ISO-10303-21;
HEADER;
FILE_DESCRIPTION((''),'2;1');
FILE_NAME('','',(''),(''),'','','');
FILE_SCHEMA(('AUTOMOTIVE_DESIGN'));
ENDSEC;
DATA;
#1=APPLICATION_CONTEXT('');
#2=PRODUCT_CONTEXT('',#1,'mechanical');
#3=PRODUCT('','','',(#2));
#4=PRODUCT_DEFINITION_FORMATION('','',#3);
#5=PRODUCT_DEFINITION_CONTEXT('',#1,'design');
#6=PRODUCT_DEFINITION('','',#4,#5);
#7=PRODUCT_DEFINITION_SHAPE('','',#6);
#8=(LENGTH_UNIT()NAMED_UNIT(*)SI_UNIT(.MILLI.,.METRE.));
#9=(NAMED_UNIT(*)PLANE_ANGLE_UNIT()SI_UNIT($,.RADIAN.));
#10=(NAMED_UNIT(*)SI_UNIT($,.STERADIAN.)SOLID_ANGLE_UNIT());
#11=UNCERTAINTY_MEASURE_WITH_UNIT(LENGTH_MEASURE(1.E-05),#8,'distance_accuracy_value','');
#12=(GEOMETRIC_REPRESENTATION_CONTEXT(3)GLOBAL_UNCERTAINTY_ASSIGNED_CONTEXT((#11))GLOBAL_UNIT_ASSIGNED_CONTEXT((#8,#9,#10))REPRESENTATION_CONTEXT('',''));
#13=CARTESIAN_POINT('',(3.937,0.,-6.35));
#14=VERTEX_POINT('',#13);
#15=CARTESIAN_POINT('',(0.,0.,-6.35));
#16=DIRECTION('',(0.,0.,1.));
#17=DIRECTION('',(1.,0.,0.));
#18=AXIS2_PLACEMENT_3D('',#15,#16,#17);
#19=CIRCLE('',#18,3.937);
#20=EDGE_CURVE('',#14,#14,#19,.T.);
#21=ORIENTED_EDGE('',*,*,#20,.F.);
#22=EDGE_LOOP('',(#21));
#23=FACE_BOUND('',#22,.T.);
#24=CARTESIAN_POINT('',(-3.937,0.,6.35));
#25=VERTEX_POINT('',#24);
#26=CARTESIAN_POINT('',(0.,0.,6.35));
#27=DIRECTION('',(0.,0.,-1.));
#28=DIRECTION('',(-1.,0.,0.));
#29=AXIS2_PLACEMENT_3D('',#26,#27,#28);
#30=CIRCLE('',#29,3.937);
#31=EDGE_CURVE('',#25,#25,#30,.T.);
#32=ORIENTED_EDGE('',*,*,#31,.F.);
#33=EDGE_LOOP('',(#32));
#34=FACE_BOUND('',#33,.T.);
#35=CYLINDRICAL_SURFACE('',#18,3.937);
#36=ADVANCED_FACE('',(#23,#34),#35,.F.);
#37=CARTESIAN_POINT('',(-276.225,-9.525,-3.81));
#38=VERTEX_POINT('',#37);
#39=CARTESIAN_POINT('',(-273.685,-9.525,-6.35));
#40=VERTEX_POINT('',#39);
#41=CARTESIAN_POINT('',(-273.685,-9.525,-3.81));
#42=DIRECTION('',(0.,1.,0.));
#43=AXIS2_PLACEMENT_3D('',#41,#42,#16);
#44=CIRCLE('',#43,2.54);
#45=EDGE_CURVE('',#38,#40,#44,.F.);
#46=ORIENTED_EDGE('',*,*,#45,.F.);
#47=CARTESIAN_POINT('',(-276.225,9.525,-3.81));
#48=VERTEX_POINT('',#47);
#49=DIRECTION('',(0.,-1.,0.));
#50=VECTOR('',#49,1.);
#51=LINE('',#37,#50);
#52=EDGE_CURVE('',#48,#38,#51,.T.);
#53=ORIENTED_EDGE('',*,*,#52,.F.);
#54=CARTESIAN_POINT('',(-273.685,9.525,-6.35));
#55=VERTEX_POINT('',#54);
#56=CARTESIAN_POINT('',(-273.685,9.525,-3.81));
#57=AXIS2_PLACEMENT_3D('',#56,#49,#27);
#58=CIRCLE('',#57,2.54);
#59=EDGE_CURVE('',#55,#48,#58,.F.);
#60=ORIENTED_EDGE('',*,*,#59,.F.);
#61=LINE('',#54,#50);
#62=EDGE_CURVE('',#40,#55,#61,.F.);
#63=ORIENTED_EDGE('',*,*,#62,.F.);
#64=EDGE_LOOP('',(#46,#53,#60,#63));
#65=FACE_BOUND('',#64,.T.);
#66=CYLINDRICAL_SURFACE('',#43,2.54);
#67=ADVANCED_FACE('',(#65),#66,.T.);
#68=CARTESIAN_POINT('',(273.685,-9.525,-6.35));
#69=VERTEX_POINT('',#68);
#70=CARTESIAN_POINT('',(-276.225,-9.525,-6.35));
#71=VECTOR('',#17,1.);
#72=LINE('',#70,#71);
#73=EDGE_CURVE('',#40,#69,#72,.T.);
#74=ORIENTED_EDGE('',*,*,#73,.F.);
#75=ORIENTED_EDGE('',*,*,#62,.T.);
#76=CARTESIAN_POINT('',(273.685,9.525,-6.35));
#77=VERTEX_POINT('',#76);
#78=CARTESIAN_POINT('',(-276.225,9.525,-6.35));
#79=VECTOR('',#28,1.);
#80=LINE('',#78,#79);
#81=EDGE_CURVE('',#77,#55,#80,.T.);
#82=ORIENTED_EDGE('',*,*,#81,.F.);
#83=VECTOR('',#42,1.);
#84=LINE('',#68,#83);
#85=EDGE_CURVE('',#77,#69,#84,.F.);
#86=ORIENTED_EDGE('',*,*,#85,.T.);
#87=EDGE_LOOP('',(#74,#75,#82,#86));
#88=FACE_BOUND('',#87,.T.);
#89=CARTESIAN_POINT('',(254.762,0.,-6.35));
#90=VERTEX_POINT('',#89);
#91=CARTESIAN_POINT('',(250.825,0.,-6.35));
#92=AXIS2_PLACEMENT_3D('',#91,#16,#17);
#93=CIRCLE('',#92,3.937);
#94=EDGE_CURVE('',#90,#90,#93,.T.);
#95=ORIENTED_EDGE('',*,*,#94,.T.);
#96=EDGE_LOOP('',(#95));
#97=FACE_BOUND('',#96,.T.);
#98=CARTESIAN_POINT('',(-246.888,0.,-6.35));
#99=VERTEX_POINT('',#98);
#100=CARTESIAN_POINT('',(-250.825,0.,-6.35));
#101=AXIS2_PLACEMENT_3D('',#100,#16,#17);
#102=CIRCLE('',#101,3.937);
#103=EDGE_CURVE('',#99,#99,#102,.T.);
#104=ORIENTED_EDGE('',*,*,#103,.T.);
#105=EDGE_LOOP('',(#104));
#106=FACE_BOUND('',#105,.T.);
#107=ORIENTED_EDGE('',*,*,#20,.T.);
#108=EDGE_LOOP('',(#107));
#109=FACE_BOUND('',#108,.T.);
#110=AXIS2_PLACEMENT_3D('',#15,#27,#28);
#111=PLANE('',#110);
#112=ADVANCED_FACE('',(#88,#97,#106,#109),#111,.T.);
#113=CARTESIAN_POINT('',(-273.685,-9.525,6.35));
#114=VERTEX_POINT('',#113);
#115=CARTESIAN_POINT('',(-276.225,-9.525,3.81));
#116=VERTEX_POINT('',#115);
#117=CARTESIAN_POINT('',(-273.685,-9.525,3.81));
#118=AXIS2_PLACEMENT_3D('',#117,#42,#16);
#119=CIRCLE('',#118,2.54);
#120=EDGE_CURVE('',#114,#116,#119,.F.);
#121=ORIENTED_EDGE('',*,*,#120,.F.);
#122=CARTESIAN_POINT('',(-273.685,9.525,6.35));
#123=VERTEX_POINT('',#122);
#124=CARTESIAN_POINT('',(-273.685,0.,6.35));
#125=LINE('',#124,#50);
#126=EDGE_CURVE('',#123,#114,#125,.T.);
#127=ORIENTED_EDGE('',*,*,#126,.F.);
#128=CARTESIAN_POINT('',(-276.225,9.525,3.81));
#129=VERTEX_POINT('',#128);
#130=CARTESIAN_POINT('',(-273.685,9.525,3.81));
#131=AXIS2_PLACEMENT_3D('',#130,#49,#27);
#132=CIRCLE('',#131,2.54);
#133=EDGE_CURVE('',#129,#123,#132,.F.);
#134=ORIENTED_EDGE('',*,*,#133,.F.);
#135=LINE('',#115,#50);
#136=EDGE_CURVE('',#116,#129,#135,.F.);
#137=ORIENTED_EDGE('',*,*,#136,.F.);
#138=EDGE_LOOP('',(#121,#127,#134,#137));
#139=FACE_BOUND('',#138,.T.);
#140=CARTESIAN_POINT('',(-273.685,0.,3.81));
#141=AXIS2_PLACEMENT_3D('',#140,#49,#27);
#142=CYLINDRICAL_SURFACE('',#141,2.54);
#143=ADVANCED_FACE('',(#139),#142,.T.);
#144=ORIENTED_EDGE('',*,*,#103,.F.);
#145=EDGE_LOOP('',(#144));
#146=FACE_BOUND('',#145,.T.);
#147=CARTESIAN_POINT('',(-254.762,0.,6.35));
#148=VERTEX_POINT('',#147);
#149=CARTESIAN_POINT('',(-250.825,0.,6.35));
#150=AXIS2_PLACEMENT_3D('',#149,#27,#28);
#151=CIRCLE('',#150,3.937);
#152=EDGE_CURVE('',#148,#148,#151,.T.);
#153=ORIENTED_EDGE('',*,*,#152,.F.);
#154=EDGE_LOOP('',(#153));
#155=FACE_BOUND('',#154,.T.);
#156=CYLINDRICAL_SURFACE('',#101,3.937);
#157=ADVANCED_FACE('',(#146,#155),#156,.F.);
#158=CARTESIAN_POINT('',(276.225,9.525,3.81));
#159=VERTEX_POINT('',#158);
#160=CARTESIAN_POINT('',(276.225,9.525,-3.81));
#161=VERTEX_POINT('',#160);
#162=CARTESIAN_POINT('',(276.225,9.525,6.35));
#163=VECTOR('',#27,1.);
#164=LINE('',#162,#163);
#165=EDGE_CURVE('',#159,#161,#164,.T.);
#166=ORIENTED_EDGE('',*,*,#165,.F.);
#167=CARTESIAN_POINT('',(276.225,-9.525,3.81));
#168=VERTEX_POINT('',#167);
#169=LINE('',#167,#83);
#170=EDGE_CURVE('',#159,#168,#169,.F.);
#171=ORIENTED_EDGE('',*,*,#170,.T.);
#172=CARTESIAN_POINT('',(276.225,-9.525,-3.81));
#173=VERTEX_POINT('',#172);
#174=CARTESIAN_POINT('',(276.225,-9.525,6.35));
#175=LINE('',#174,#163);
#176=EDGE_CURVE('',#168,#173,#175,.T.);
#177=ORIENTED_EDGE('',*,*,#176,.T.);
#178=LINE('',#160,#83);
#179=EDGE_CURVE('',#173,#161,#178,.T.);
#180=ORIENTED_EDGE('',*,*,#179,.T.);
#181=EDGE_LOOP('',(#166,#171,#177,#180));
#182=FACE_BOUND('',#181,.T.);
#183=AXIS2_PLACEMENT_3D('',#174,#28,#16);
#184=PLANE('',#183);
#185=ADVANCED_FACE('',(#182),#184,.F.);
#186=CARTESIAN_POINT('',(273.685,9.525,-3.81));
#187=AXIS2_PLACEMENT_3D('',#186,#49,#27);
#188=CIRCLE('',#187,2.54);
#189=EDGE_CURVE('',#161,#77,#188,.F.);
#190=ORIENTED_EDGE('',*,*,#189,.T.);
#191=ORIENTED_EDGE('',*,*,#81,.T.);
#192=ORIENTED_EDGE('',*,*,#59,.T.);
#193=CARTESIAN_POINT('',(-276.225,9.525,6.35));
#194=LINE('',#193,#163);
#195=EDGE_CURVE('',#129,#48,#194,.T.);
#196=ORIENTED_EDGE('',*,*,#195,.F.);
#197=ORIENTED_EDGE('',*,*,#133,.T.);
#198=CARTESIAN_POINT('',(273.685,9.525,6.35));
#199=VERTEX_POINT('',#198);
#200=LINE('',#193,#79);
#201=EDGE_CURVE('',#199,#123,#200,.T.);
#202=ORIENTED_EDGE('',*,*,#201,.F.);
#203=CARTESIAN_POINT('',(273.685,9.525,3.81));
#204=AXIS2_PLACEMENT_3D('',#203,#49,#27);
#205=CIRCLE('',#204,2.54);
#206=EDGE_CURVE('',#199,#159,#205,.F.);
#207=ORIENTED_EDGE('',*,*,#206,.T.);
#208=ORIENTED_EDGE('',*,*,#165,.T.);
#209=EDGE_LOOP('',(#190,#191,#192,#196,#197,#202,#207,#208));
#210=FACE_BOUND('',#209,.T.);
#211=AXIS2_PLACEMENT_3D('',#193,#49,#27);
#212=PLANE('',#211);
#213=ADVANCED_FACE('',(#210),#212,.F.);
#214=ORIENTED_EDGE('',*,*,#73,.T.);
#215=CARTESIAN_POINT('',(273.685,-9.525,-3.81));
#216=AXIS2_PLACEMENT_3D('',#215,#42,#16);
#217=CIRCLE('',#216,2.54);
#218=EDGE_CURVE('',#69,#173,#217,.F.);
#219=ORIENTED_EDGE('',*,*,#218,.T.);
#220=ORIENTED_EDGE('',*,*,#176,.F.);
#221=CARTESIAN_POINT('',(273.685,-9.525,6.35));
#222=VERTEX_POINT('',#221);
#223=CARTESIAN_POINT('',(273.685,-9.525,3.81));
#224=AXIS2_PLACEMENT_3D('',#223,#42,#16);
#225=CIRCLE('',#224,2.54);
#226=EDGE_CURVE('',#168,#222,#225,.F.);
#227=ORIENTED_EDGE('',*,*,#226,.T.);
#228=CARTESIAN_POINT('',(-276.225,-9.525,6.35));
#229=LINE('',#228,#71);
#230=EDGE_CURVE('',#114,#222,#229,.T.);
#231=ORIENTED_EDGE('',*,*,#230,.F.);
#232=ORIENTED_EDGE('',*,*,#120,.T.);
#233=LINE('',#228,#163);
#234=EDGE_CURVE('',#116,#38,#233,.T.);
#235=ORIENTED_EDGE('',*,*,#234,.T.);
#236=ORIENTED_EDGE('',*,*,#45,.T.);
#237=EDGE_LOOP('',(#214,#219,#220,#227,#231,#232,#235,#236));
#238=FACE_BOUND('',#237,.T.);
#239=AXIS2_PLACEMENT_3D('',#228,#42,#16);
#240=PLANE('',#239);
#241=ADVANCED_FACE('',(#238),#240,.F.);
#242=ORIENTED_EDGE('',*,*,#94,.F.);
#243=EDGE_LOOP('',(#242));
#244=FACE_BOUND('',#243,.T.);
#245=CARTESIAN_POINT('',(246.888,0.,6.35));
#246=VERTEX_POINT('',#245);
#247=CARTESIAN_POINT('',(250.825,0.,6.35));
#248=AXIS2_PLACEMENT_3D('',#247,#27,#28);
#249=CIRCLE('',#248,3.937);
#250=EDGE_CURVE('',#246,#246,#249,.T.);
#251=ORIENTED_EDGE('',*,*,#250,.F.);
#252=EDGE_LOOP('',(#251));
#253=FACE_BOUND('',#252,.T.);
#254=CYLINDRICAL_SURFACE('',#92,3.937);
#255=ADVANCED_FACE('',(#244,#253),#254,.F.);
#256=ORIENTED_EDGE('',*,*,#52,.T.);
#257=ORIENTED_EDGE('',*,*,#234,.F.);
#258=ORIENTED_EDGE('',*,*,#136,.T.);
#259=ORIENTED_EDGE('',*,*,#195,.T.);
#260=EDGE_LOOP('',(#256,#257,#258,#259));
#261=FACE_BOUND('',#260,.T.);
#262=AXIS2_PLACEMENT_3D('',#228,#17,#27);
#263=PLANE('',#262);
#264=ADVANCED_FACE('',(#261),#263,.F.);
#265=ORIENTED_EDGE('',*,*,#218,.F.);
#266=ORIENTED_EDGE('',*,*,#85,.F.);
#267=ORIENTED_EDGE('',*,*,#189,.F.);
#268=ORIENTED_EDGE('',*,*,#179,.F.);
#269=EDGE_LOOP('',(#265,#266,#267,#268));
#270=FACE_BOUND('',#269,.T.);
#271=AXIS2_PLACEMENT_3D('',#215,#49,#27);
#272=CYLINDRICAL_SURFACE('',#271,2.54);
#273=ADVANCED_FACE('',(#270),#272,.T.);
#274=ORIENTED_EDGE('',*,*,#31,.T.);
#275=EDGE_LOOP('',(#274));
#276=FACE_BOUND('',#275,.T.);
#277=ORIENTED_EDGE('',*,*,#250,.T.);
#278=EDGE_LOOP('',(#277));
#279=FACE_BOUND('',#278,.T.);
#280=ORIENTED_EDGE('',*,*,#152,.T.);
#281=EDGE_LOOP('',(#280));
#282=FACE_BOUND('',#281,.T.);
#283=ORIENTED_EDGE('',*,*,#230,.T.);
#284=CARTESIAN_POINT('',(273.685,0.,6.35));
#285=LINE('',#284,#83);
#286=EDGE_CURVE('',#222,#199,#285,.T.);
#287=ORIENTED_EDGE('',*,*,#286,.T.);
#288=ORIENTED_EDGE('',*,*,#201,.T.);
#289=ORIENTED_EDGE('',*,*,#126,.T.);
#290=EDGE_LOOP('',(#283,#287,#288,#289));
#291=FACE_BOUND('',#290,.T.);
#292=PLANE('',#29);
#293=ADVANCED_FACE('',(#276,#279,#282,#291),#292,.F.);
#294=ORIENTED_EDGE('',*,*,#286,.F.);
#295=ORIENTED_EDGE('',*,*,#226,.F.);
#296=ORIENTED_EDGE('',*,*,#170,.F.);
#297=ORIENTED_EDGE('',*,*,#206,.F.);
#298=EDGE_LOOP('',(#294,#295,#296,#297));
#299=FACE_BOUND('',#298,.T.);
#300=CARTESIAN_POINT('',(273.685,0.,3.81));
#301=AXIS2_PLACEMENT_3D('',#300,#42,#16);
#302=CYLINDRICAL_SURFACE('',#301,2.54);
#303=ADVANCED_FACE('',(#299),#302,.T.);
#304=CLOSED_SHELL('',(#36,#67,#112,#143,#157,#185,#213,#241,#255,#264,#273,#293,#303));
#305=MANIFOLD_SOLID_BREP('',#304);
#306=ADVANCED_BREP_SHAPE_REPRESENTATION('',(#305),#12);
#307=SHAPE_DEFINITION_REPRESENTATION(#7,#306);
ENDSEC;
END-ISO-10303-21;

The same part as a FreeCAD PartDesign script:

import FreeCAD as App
import Part
import Sketcher
from FreeCAD import Vector
Q = App.Units.Quantity


def edges_at(feature, points):
    """Names of the edges that pass closest to the given points."""
    edges = feature.Shape.Edges
    near = lambda p: min(range(len(edges)), key=lambda i: edges[i].distToShape(Part.Vertex(*p))[0])
    return sorted({f"Edge{near(p) + 1}" for p in points})

doc = App.newDocument("Part")
body = doc.addObject("PartDesign::Body", "Body")

# Sketch on XY plane
sketch1 = body.newObject("Sketcher::SketchObject", "Sketch")
sketch1.AttachmentSupport = (doc.getObject("XY_Plane"), [""])
sketch1.MapMode = "FlatFace"
sketch1.addGeometry(Part.LineSegment(Vector(-276.225, 9.525, 0), Vector(-276.225, -9.525, 0)), False)
sketch1.addGeometry(Part.LineSegment(Vector(-276.225, -9.525, 0), Vector(276.225, -9.525, 0)), False)
sketch1.addGeometry(Part.LineSegment(Vector(276.225, -9.525, 0), Vector(276.225, 9.525, 0)), False)
sketch1.addGeometry(Part.LineSegment(Vector(276.225, 9.525, 0), Vector(-276.225, 9.525, 0)), False)
sketch1.addConstraint(Sketcher.Constraint("Coincident", 0, 2, 1, 1))
sketch1.addConstraint(Sketcher.Constraint("Coincident", 1, 2, 2, 1))
sketch1.addConstraint(Sketcher.Constraint("Coincident", 2, 2, 3, 1))
sketch1.addConstraint(Sketcher.Constraint("Coincident", 3, 2, 0, 1))
sketch1.addConstraint(Sketcher.Constraint("Vertical", 0))
sketch1.addConstraint(Sketcher.Constraint("Horizontal", 1))
sketch1.addConstraint(Sketcher.Constraint("Vertical", 2))
sketch1.addConstraint(Sketcher.Constraint("Horizontal", 3))
sketch1.addConstraint(Sketcher.Constraint("Symmetric", 0, 2, 2, 2, -1, 1))
sketch1.addConstraint(Sketcher.Constraint("DistanceX", 1, 1, 1, 2, Q("21.75 in")))
sketch1.addConstraint(Sketcher.Constraint("DistanceY", 0, 2, 0, 1, Q("0.75 in")))
pad1 = body.newObject("PartDesign::Pad", "Pad")
pad1.Profile = sketch1
pad1.Length = Q("0.5 in")
pad1.Midplane = True

# Sketch on XY plane
sketch2 = body.newObject("Sketcher::SketchObject", "Sketch001")
sketch2.AttachmentSupport = (doc.getObject("XY_Plane"), [""])
sketch2.MapMode = "FlatFace"
sketch2.AttachmentOffset = App.Placement(Vector(0, 0, 0.25 * 25.4), App.Rotation())
sketch2.addGeometry(Part.Circle(Vector(0, 0, 0), Vector(0, 0, 1), 3.937), False)
sketch2.addGeometry(Part.Circle(Vector(250.825, 0, 0), Vector(0, 0, 1), 3.937), False)
sketch2.addGeometry(Part.Circle(Vector(-250.825, 0, 0), Vector(0, 0, 1), 3.937), False)
sketch2.addConstraint(Sketcher.Constraint("Coincident", 0, 3, -1, 1))
sketch2.addConstraint(Sketcher.Constraint("Equal", 0, 1))
sketch2.addConstraint(Sketcher.Constraint("Equal", 1, 2))
sketch2.addConstraint(Sketcher.Constraint("Symmetric", 1, 3, 2, 3, -1, 1))
sketch2.addConstraint(Sketcher.Constraint("PointOnObject", 1, 3, -1))
sketch2.addConstraint(Sketcher.Constraint("Diameter", 0, Q("0.31 in")))
sketch2.addConstraint(Sketcher.Constraint("DistanceX", 2, 3, 1, 3, Q("19.75 in")))
pocket1 = body.newObject("PartDesign::Pocket", "Pocket")
pocket1.Profile = sketch2
pocket1.Type = "ThroughAll"
pocket1.Midplane = True
doc.recompute()

fillet = body.newObject("PartDesign::Fillet", "Fillet")
fillet.Base = (pocket1, edges_at(pocket1, [
    (-276.225, 0, 6.35),
    (276.225, 0, 6.35),
    (-276.225, 0, -6.35),
    (276.225, 0, -6.35),
]))
fillet.Radius = Q("0.1 in")

doc.recompute()
